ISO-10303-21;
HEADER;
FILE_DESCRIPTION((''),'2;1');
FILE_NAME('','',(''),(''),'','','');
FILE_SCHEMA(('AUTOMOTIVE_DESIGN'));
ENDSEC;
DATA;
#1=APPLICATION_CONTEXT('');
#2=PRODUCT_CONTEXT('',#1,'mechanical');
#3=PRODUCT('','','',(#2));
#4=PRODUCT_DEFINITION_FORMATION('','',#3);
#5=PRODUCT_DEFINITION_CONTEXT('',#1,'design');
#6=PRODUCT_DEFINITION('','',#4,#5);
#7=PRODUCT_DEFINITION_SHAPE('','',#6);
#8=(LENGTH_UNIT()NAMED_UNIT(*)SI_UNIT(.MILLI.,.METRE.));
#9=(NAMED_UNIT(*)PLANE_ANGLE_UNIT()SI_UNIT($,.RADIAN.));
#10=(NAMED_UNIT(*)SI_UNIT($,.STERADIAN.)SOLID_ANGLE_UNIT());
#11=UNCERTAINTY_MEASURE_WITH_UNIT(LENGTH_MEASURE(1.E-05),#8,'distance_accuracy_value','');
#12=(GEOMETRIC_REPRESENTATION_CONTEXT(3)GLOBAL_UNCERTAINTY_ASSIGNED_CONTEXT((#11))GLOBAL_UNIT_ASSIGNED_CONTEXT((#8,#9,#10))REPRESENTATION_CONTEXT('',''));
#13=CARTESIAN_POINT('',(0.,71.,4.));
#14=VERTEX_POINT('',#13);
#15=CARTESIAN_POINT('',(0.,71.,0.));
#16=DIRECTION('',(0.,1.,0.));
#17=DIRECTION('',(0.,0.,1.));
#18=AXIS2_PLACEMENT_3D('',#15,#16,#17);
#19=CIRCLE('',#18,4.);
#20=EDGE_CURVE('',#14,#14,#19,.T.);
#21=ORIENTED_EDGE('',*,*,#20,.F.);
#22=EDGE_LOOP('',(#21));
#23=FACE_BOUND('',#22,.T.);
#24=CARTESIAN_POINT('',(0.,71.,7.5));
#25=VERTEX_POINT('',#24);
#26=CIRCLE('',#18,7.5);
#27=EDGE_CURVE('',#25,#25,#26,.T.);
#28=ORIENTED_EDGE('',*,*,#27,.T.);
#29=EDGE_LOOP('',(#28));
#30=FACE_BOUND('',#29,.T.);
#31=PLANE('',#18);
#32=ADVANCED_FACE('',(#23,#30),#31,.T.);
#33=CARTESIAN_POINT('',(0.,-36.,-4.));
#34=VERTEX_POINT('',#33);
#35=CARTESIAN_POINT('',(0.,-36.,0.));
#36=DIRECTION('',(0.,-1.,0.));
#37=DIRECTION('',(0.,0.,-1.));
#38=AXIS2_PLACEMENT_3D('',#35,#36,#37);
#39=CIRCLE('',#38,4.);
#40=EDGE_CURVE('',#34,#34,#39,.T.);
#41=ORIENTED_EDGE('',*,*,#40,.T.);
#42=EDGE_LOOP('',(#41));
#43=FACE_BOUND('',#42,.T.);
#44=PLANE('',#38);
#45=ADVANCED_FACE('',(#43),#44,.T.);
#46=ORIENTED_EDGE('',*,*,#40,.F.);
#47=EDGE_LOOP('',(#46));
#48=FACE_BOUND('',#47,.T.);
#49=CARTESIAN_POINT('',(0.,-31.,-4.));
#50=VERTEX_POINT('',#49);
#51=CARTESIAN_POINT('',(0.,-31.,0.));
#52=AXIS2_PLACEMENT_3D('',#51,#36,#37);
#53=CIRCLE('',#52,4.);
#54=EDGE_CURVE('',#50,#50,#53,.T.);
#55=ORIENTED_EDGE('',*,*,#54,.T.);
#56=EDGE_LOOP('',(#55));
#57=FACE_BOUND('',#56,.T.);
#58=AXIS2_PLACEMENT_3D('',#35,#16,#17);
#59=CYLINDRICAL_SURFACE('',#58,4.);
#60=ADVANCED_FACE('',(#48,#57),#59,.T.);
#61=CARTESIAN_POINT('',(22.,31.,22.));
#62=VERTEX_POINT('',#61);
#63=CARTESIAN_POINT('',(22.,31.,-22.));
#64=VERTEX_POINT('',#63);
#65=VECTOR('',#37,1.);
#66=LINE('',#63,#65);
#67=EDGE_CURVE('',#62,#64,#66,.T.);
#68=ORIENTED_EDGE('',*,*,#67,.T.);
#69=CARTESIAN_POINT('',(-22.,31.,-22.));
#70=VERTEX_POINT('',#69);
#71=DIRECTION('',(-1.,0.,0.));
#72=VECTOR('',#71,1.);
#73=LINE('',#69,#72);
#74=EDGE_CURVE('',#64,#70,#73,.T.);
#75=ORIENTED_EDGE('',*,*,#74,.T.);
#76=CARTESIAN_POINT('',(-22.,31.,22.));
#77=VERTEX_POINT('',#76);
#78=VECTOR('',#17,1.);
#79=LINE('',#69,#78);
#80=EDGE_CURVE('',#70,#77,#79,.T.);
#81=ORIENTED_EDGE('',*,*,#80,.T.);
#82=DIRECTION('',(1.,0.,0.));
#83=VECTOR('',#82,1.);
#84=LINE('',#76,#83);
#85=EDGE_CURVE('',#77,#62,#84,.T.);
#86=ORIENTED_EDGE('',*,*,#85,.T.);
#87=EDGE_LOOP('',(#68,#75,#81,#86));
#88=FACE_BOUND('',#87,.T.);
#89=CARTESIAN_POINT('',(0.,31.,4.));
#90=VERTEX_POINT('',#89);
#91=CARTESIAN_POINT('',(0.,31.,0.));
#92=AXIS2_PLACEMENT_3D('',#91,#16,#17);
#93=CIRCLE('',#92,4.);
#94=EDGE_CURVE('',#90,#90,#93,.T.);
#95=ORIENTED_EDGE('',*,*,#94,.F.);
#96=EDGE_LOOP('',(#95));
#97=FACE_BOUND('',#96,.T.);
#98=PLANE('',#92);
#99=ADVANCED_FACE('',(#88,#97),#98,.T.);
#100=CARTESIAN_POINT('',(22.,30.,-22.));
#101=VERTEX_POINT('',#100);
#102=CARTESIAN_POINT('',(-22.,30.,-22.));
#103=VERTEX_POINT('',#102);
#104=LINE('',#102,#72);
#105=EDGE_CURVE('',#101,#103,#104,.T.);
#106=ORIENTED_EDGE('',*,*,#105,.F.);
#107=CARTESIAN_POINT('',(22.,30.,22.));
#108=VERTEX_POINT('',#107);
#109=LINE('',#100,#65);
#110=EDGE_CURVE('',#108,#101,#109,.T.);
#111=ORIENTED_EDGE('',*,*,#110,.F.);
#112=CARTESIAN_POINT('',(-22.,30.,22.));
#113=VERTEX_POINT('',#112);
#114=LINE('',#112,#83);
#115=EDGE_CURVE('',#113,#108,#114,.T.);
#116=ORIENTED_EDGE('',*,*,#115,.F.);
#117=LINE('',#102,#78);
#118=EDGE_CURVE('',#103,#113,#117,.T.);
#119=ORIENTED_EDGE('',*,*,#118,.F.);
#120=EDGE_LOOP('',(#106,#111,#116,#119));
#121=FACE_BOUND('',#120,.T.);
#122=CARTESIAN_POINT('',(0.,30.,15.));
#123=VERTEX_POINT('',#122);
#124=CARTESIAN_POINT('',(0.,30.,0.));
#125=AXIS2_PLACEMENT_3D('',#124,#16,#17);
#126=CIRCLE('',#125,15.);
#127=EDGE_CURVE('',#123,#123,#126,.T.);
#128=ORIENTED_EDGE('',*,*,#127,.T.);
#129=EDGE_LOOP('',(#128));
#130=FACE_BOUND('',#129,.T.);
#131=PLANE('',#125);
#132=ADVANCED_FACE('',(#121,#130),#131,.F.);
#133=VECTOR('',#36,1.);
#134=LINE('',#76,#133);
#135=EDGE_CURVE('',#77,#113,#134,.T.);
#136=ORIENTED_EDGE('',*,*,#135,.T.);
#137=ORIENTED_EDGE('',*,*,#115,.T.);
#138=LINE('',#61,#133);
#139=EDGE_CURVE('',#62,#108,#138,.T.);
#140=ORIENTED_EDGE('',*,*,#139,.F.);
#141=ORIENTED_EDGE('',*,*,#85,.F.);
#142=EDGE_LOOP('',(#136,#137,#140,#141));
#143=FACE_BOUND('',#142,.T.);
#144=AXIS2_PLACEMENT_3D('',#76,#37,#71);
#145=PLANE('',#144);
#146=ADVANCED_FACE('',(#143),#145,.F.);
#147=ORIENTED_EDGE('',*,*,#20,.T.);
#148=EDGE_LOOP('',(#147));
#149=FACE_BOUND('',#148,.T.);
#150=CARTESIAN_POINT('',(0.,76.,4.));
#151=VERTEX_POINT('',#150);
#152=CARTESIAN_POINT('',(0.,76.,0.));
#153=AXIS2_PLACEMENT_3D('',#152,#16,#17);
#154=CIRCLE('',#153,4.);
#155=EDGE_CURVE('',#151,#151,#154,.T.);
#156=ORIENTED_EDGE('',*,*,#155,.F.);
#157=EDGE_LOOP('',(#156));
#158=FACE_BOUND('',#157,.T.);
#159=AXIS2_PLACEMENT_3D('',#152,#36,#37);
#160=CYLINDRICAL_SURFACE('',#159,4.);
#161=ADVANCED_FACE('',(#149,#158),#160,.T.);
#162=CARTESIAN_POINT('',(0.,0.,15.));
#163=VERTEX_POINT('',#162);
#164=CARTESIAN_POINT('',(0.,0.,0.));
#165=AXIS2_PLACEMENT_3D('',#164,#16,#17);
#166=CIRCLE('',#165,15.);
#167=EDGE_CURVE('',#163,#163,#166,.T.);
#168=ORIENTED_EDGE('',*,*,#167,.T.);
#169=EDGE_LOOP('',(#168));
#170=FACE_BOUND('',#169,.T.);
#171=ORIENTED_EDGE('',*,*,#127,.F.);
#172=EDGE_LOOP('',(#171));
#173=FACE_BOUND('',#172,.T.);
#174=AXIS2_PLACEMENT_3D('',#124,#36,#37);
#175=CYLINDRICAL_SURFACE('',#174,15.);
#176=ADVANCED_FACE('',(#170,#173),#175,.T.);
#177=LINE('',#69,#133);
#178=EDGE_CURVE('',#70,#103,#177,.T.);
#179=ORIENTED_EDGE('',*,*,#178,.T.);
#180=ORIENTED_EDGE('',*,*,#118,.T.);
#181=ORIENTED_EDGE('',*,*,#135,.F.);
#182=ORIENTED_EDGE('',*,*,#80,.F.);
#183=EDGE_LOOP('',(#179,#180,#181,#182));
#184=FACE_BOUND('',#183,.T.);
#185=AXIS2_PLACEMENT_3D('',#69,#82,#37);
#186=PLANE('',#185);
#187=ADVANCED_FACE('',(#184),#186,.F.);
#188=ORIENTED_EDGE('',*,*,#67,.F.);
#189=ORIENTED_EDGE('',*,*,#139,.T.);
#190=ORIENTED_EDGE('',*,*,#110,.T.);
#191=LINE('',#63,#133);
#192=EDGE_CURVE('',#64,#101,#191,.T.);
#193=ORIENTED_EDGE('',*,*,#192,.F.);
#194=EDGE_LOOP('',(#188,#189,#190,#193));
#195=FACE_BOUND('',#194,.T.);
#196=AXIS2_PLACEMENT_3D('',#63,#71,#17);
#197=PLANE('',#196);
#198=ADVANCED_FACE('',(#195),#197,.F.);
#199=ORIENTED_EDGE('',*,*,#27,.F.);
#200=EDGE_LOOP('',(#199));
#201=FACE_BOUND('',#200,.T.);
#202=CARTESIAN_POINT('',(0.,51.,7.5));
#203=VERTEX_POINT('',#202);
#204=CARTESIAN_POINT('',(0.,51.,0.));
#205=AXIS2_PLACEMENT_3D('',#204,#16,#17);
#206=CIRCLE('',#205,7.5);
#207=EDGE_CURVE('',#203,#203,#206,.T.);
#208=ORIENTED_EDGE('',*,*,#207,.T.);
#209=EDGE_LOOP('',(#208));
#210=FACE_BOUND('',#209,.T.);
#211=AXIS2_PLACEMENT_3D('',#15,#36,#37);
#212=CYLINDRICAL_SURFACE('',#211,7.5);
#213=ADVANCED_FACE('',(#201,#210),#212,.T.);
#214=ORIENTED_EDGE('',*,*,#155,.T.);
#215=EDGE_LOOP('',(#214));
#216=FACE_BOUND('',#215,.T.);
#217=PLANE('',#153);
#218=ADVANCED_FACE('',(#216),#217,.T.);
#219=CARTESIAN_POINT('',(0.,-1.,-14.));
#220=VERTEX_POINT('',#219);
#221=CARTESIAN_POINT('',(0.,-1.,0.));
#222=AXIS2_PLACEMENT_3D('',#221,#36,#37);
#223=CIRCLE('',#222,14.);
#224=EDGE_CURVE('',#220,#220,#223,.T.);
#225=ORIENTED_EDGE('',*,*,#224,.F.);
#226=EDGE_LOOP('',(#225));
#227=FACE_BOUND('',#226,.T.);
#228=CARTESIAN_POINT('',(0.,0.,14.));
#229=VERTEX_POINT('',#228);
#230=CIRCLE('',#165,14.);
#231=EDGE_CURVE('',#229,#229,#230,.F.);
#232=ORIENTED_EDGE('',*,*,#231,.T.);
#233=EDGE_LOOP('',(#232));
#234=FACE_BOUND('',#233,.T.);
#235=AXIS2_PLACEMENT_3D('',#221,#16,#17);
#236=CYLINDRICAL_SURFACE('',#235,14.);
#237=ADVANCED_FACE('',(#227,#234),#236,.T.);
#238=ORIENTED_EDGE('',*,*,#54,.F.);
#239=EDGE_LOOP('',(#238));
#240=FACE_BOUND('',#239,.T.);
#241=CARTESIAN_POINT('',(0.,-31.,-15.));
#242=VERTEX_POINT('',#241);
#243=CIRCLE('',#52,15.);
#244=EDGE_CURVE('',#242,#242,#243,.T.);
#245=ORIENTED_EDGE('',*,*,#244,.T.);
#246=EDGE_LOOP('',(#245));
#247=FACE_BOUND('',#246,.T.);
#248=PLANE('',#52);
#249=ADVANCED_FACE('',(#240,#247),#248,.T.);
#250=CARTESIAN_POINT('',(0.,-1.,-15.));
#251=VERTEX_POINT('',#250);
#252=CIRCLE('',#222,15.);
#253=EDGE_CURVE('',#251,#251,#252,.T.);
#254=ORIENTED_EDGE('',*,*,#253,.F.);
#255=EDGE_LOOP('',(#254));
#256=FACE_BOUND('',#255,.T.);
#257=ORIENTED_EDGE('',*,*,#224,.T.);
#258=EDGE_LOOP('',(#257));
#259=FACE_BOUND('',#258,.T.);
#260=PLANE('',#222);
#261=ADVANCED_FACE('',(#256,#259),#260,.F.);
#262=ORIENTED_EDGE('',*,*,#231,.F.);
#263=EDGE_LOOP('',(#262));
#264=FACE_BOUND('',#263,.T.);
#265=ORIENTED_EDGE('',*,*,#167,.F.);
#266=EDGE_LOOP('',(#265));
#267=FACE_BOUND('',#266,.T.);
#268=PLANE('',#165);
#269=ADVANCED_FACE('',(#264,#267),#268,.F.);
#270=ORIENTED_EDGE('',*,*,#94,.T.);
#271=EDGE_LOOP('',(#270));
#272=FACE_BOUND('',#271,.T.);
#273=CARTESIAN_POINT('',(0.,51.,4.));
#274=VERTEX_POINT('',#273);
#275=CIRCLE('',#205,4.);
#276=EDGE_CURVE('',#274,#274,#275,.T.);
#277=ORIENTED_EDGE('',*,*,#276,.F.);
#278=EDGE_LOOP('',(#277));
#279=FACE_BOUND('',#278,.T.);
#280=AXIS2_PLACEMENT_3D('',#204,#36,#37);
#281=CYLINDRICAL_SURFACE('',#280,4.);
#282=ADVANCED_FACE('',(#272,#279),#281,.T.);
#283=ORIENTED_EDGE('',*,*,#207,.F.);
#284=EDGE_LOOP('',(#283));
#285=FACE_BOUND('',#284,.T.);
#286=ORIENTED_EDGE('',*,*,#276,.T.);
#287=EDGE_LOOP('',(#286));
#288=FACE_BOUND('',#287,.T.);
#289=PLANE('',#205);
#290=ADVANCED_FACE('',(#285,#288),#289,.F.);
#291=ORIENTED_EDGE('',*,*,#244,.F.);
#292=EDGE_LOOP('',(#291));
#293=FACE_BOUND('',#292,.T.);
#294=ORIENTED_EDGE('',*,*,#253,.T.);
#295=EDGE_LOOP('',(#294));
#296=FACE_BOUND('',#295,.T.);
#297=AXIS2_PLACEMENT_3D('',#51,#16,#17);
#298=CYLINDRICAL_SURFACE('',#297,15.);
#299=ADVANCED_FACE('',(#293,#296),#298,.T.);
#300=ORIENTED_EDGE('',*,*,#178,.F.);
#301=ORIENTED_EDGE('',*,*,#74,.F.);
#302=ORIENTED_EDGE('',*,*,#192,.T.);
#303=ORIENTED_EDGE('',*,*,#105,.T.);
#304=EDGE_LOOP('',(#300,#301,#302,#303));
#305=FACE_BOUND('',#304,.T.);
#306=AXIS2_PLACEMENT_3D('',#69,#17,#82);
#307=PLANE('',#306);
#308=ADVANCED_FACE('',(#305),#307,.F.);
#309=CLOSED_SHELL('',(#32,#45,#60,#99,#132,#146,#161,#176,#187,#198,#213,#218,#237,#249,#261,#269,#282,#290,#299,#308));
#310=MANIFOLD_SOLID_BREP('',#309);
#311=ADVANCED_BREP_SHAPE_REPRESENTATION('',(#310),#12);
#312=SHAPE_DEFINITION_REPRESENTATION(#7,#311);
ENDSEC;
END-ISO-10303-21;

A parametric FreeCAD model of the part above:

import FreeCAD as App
import Part
import Sketcher

V = App.Vector


def add_polygon(sketch, points):
    """Adds a closed chain of lines whose ends are joined by coincident constraints."""
    first, n = sketch.GeometryCount, len(points)
    for a, b in zip(points, points[1:] + points[:1]):
        sketch.addGeometry(Part.LineSegment(App.Vector(*a, 0), App.Vector(*b, 0)), False)
    for i in range(n):
        sketch.addConstraint(Sketcher.Constraint("Coincident", first + i, 2, first + (i + 1) % n, 1))

doc = App.newDocument("Part")
params = doc.addObject("Spreadsheet::Sheet", "Params")
for row, (alias, value) in enumerate([
    ("sketch1_diameter", "30 mm"),
    ("pad1_length", "30 mm"),
    ("sketch2_width", "44 mm"),
    ("pad2_length", "1 mm"),
    ("sketch3_diameter", "8 mm"),
    ("pad3_length", "20 mm"),
    ("sketch4_diameter", "15 mm"),
    ("pad4_length", "20 mm"),
    ("sketch5_diameter", "8 mm"),
    ("pad5_length", "5 mm"),
    ("sketch6_diameter", "28 mm"),
    ("pad6_length", "1 mm"),
    ("sketch7_diameter", "30 mm"),
    ("pad7_length", "30 mm"),
    ("sketch8_diameter", "8 mm"),
    ("pad8_length", "5 mm"),
], start=1):
    params.set(f"A{row}", alias)
    params.set(f"B{row}", "=" + value)
    params.setAlias(f"B{row}", alias)

body = doc.addObject("PartDesign::Body", "Body")

sketch1 = doc.addObject("Sketcher::SketchObject", "Sketch")
body.addObject(sketch1)
sketch1.AttachmentSupport = (doc.XZ_Plane, [""])
sketch1.MapMode = "FlatFace"
sketch1.addGeometry(Part.Circle(V(0, 0, 0), V(0, 0, 1), 15), False)
sketch1.addConstraint(Sketcher.Constraint("Coincident", 0, 3, -1, 1))
sketch1.addConstraint(Sketcher.Constraint("Diameter", 0, 30.0))
sketch1.setExpression("Constraints[1]", "Params.sketch1_diameter")
pad1 = doc.addObject("PartDesign::Pad", "Pad")
body.addObject(pad1)
pad1.Profile = sketch1
pad1.setExpression("Length", "Params.pad1_length")
pad1.Reversed = True

sketch2 = doc.addObject("Sketcher::SketchObject", "Sketch001")
body.addObject(sketch2)
sketch2.AttachmentSupport = (doc.XZ_Plane, [""])
sketch2.MapMode = "FlatFace"
sketch2.AttachmentOffset = App.Placement(V(0, 0, -30), App.Rotation())
add_polygon(sketch2, [(-22, -22), (-22, 22), (22, 22), (22, -22)])
sketch2.addConstraint(Sketcher.Constraint("Vertical", 0))
sketch2.addConstraint(Sketcher.Constraint("Horizontal", 1))
sketch2.addConstraint(Sketcher.Constraint("Vertical", 2))
sketch2.addConstraint(Sketcher.Constraint("Horizontal", 3))
sketch2.addConstraint(Sketcher.Constraint("Symmetric", 0, 2, 2, 2, -1, 1))
sketch2.addConstraint(Sketcher.Constraint("Equal", 3, 0))
sketch2.addConstraint(Sketcher.Constraint("DistanceX", 1, 1, 1, 2, 44.0))
sketch2.setExpression("Constraints[10]", "Params.sketch2_width")
pad2 = doc.addObject("PartDesign::Pad", "Pad001")
body.addObject(pad2)
pad2.Profile = sketch2
pad2.setExpression("Length", "Params.pad2_length")
pad2.Reversed = True

sketch3 = doc.addObject("Sketcher::SketchObject", "Sketch002")
body.addObject(sketch3)
sketch3.AttachmentSupport = (doc.XZ_Plane, [""])
sketch3.MapMode = "FlatFace"
sketch3.AttachmentOffset = App.Placement(V(0, 0, -31), App.Rotation())
sketch3.addGeometry(Part.Circle(V(0, 0, 0), V(0, 0, 1), 4), False)
sketch3.addConstraint(Sketcher.Constraint("Coincident", 0, 3, -1, 1))
sketch3.addConstraint(Sketcher.Constraint("Diameter", 0, 8.0))
sketch3.setExpression("Constraints[1]", "Params.sketch3_diameter")
pad3 = doc.addObject("PartDesign::Pad", "Pad002")
body.addObject(pad3)
pad3.Profile = sketch3
pad3.setExpression("Length", "Params.pad3_length")
pad3.Reversed = True

sketch4 = doc.addObject("Sketcher::SketchObject", "Sketch003")
body.addObject(sketch4)
sketch4.AttachmentSupport = (doc.XZ_Plane, [""])
sketch4.MapMode = "FlatFace"
sketch4.AttachmentOffset = App.Placement(V(0, 0, -51), App.Rotation())
sketch4.addGeometry(Part.Circle(V(0, 0, 0), V(0, 0, 1), 7.5), False)
sketch4.addConstraint(Sketcher.Constraint("Coincident", 0, 3, -1, 1))
sketch4.addConstraint(Sketcher.Constraint("Diameter", 0, 15.0))
sketch4.setExpression("Constraints[1]", "Params.sketch4_diameter")
pad4 = doc.addObject("PartDesign::Pad", "Pad003")
body.addObject(pad4)
pad4.Profile = sketch4
pad4.setExpression("Length", "Params.pad4_length")
pad4.Reversed = True

sketch5 = doc.addObject("Sketcher::SketchObject", "Sketch004")
body.addObject(sketch5)
sketch5.AttachmentSupport = (doc.XZ_Plane, [""])
sketch5.MapMode = "FlatFace"
sketch5.AttachmentOffset = App.Placement(V(0, 0, -71), App.Rotation())
sketch5.addGeometry(Part.Circle(V(0, 0, 0), V(0, 0, 1), 4), False)
sketch5.addConstraint(Sketcher.Constraint("Coincident", 0, 3, -1, 1))
sketch5.addConstraint(Sketcher.Constraint("Diameter", 0, 8.0))
sketch5.setExpression("Constraints[1]", "Params.sketch5_diameter")
pad5 = doc.addObject("PartDesign::Pad", "Pad004")
body.addObject(pad5)
pad5.Profile = sketch5
pad5.setExpression("Length", "Params.pad5_length")
pad5.Reversed = True

sketch6 = doc.addObject("Sketcher::SketchObject", "Sketch005")
body.addObject(sketch6)
sketch6.AttachmentSupport = (doc.XZ_Plane, [""])
sketch6.MapMode = "FlatFace"
sketch6.addGeometry(Part.Circle(V(0, 0, 0), V(0, 0, 1), 14), False)
sketch6.addConstraint(Sketcher.Constraint("Coincident", 0, 3, -1, 1))
sketch6.addConstraint(Sketcher.Constraint("Diameter", 0, 28.0))
sketch6.setExpression("Constraints[1]", "Params.sketch6_diameter")
pad6 = doc.addObject("PartDesign::Pad", "Pad005")
body.addObject(pad6)
pad6.Profile = sketch6
pad6.setExpression("Length", "Params.pad6_length")

sketch7 = doc.addObject("Sketcher::SketchObject", "Sketch006")
body.addObject(sketch7)
sketch7.AttachmentSupport = (doc.XZ_Plane, [""])
sketch7.MapMode = "FlatFace"
sketch7.AttachmentOffset = App.Placement(V(0, 0, 1), App.Rotation())
sketch7.addGeometry(Part.Circle(V(0, 0, 0), V(0, 0, 1), 15), False)
sketch7.addConstraint(Sketcher.Constraint("Coincident", 0, 3, -1, 1))
sketch7.addConstraint(Sketcher.Constraint("Diameter", 0, 30.0))
sketch7.setExpression("Constraints[1]", "Params.sketch7_diameter")
pad7 = doc.addObject("PartDesign::Pad", "Pad006")
body.addObject(pad7)
pad7.Profile = sketch7
pad7.setExpression("Length", "Params.pad7_length")

sketch8 = doc.addObject("Sketcher::SketchObject", "Sketch007")
body.addObject(sketch8)
sketch8.AttachmentSupport = (doc.XZ_Plane, [""])
sketch8.MapMode = "FlatFace"
sketch8.AttachmentOffset = App.Placement(V(0, 0, 31), App.Rotation())
sketch8.addGeometry(Part.Circle(V(0, 0, 0), V(0, 0, 1), 4), False)
sketch8.addConstraint(Sketcher.Constraint("Coincident", 0, 3, -1, 1))
sketch8.addConstraint(Sketcher.Constraint("Diameter", 0, 8.0))
sketch8.setExpression("Constraints[1]", "Params.sketch8_diameter")
pad8 = doc.addObject("PartDesign::Pad", "Pad007")
body.addObject(pad8)
pad8.Profile = sketch8
pad8.setExpression("Length", "Params.pad8_length")

doc.recompute()
